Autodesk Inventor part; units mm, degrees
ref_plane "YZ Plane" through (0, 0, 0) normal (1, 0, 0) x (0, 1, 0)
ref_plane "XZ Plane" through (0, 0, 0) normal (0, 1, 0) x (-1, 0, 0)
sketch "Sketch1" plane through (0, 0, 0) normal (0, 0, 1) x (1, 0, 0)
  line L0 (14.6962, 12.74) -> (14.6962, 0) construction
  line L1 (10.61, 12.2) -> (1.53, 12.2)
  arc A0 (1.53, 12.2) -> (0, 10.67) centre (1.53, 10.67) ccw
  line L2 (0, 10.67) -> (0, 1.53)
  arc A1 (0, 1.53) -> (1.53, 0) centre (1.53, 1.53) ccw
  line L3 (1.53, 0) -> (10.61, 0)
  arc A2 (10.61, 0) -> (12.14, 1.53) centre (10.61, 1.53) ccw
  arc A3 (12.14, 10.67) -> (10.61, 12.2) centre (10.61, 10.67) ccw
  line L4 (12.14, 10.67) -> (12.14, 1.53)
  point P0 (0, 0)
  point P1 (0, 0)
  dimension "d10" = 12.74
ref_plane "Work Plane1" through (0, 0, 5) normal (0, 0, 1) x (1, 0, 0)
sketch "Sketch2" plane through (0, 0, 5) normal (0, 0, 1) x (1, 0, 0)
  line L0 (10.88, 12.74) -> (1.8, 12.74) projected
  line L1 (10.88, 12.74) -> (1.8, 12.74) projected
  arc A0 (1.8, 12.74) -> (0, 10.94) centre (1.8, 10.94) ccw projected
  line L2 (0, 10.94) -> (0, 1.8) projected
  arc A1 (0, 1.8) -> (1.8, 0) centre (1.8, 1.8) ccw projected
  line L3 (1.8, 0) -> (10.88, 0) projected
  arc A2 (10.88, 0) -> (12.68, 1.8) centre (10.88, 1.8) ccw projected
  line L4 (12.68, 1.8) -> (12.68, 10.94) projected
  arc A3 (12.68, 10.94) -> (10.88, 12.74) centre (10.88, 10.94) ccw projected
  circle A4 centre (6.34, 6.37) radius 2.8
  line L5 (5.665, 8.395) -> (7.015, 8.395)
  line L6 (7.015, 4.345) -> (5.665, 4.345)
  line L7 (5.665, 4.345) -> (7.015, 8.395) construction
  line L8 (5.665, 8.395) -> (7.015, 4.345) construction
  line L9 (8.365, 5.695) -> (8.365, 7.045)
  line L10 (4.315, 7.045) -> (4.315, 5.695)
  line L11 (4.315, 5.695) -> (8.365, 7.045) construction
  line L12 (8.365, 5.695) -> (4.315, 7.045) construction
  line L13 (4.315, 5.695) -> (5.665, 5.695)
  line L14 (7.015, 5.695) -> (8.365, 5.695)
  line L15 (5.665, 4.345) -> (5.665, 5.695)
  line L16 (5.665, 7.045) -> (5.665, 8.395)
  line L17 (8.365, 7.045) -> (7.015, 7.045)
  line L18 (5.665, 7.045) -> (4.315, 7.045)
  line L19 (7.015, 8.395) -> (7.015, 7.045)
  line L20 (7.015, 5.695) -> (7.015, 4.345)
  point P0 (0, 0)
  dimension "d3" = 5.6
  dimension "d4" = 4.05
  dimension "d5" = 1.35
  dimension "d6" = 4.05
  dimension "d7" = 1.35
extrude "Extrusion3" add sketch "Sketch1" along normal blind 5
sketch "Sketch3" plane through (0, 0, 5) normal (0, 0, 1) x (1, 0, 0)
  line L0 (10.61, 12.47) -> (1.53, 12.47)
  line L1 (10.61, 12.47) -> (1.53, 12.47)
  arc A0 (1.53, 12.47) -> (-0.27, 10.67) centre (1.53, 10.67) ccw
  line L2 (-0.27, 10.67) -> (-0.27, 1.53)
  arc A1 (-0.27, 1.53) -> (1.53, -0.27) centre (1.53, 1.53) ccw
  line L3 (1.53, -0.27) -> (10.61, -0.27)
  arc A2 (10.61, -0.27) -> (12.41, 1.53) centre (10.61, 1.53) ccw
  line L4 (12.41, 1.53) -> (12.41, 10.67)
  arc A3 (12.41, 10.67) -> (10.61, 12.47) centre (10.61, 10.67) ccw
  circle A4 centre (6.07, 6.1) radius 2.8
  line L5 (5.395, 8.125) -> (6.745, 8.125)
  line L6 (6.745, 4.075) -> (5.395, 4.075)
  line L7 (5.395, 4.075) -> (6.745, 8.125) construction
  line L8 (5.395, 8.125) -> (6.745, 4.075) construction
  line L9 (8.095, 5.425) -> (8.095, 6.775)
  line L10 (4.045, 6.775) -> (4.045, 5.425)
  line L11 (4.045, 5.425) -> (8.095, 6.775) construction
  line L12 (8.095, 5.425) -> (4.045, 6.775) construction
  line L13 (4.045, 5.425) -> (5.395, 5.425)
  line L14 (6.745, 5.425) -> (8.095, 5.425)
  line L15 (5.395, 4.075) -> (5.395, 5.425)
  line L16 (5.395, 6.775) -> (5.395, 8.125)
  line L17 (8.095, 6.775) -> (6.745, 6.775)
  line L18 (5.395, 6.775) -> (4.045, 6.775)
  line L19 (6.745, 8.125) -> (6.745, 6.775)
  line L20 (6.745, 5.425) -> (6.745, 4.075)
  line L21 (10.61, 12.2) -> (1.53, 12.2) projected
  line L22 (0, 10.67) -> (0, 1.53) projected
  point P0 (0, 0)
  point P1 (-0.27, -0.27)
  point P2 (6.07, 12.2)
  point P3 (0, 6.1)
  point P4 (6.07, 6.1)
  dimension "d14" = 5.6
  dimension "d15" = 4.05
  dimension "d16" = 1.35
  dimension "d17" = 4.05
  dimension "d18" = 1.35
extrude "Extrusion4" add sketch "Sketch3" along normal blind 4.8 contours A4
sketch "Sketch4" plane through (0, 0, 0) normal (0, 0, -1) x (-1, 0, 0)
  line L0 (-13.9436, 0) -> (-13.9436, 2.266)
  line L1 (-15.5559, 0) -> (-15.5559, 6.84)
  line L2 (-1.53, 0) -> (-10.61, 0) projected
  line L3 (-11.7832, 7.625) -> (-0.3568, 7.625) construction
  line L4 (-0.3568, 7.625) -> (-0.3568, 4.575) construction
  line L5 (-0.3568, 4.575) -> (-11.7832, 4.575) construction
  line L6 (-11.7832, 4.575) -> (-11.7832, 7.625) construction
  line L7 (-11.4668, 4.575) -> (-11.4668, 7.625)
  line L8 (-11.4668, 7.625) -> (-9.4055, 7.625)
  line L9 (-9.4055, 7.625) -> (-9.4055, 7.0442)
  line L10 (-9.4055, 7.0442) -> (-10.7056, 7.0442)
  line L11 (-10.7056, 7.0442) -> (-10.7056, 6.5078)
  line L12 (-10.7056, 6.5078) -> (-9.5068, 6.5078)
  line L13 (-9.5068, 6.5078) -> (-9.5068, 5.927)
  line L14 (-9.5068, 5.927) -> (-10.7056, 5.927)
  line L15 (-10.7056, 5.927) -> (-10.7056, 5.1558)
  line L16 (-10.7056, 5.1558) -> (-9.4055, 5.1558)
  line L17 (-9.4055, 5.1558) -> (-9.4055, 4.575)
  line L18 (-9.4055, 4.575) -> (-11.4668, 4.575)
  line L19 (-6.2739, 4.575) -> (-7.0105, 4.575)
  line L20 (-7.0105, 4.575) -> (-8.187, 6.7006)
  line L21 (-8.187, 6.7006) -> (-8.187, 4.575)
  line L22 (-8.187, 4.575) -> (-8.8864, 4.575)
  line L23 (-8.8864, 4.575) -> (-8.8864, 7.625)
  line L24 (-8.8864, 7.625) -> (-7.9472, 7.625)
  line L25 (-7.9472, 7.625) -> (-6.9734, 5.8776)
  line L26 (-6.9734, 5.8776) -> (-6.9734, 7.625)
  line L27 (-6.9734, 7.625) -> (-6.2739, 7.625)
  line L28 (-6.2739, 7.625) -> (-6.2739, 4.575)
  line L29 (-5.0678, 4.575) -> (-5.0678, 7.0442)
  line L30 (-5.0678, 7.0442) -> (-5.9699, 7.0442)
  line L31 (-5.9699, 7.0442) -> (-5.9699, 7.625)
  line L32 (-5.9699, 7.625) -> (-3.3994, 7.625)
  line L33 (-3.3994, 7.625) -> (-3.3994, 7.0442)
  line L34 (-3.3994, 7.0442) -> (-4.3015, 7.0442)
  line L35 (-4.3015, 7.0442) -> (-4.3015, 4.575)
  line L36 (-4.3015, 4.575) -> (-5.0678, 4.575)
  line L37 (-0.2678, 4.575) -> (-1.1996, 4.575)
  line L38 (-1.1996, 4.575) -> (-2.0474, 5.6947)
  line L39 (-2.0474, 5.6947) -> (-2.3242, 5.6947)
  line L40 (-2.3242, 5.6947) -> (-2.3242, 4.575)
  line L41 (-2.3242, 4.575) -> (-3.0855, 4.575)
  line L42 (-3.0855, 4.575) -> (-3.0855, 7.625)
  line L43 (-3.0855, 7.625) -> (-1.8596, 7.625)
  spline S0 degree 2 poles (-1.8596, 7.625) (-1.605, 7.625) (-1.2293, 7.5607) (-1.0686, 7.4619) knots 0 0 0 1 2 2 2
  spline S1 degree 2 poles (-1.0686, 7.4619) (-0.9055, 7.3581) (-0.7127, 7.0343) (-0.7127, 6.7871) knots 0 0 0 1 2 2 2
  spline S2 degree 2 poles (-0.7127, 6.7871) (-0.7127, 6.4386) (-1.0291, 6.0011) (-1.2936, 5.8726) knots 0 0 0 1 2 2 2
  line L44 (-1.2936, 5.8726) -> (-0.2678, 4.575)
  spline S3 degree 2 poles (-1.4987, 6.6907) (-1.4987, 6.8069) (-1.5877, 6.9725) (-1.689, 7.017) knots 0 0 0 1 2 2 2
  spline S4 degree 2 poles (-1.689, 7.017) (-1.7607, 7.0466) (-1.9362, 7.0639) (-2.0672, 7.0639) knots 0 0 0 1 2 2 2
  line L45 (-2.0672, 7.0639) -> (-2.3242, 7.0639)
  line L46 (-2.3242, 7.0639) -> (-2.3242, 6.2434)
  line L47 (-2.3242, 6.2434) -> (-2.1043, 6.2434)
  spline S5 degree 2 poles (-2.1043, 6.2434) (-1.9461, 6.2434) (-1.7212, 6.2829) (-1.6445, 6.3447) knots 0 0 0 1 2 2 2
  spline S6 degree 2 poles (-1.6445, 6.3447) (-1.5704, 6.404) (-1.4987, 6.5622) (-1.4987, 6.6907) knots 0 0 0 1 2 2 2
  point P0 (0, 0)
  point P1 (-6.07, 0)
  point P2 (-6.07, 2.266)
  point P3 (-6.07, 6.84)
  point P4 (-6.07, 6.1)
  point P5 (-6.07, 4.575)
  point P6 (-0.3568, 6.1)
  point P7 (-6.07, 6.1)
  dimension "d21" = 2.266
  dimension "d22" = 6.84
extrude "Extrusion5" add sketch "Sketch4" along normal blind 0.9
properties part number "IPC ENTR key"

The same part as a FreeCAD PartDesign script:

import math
import FreeCAD as App
import Part
import Sketcher

V = App.Vector
Q = App.Units.Quantity


def add_polygon(sketch, points):
    """Adds a closed chain of lines whose ends are joined by coincident constraints."""
    first, n = sketch.GeometryCount, len(points)
    for a, b in zip(points, points[1:] + points[:1]):
        sketch.addGeometry(Part.LineSegment(App.Vector(*a, 0), App.Vector(*b, 0)), False)
    for i in range(n):
        sketch.addConstraint(Sketcher.Constraint("Coincident", first + i, 2, first + (i + 1) % n, 1))

doc = App.newDocument("Part")
params = doc.addObject("Spreadsheet::Sheet", "Params")
for row, (alias, value) in enumerate([
    ("sketch1_radius", "1.53 mm"),
    ("sketch1_width", "9.08 mm"),
    ("sketch1_height", "9.14 mm"),
    ("pad1_length", "5 mm"),
    ("sketch2_diameter", "5.6 mm"),
    ("sketch2_width", "1.35 mm"),
    ("pad2_length", "4.8 mm"),
    ("sketch3_width", "1.3 mm"),
    ("sketch3_width2", "0.22 mm"),
    ("sketch3_height", "3.05 mm"),
    ("pad3_length", "0.9 mm"),
], start=1):
    params.set(f"A{row}", alias)
    params.set(f"B{row}", "=" + value)
    params.setAlias(f"B{row}", alias)

body = doc.addObject("PartDesign::Body", "Body")

# Sketch on XY plane
sketch1 = body.newObject("Sketcher::SketchObject", "Sketch")
sketch1.AttachmentSupport = (doc.getObject("XY_Plane"), [""])
sketch1.MapMode = "FlatFace"
sketch1.addGeometry([
    Part.ArcOfCircle(Part.Circle(V(10.61, 10.67, 0), V(0, 0, 1), 1.53), math.radians(0), math.radians(90)),  # 0
    Part.LineSegment(V(10.61, 12.2, 0), V(1.53, 12.2, 0)),  # 1
    Part.ArcOfCircle(Part.Circle(V(1.53, 10.67, 0), V(0, 0, 1), 1.53), math.radians(90), math.radians(180)),  # 2
    Part.LineSegment(V(0, 10.67, 0), V(0, 1.53, 0)),  # 3
    Part.ArcOfCircle(Part.Circle(V(1.53, 1.53, 0), V(0, 0, 1), 1.53), math.radians(180), math.radians(270)),  # 4
    Part.LineSegment(V(1.53, 0, 0), V(10.61, 0, 0)),  # 5
    Part.ArcOfCircle(Part.Circle(V(10.61, 1.53, 0), V(0, 0, 1), 1.53), math.radians(-90), math.radians(0)),  # 6
    Part.LineSegment(V(12.14, 1.53, 0), V(12.14, 10.67, 0)),  # 7
], False)
sketch1.addConstraint([
    Sketcher.Constraint("Tangent", 0, 2, 1, 1),
    Sketcher.Constraint("Tangent", 1, 2, 2, 1),
    Sketcher.Constraint("Tangent", 2, 2, 3, 1),
    Sketcher.Constraint("Tangent", 3, 2, 4, 1),
    Sketcher.Constraint("Tangent", 4, 2, 5, 1),
    Sketcher.Constraint("Tangent", 5, 2, 6, 1),
    Sketcher.Constraint("Tangent", 6, 2, 7, 1),
    Sketcher.Constraint("Tangent", 7, 2, 0, 1),
    Sketcher.Constraint("Horizontal", 1),
    Sketcher.Constraint("Vertical", 3),
    Sketcher.Constraint("Horizontal", 5),
    Sketcher.Constraint("Vertical", 7),
    Sketcher.Constraint("Equal", 0, 2),
    Sketcher.Constraint("Equal", 2, 4),
    Sketcher.Constraint("Equal", 4, 6),
    Sketcher.Constraint("PointOnObject", 2, 2, -2),
    Sketcher.Constraint("PointOnObject", 4, 2, -1),
    Sketcher.Constraint("Radius", 0, Q("1.53 mm")),
    Sketcher.Constraint("DistanceX", 1, 2, 1, 1, Q("9.08 mm")),
    Sketcher.Constraint("DistanceY", 3, 2, 3, 1, Q("9.14 mm")),
])
sketch1.setExpression("Constraints[17]", "Params.sketch1_radius")
sketch1.setExpression("Constraints[18]", "Params.sketch1_width")
sketch1.setExpression("Constraints[19]", "Params.sketch1_height")
pad1 = body.newObject("PartDesign::Pad", "Pad")
pad1.Profile = sketch1
pad1.setExpression("Length", "Params.pad1_length")

# Sketch on XY plane
sketch2 = body.newObject("Sketcher::SketchObject", "Sketch001")
sketch2.AttachmentSupport = (doc.getObject("XY_Plane"), [""])
sketch2.MapMode = "FlatFace"
sketch2.AttachmentOffset = App.Placement(V(0, 0, 5), App.Rotation())
sketch2.addGeometry(Part.Circle(V(6.07, 6.1, 0), V(0, 0, 1), 2.8), False)  # 0
add_polygon(sketch2, [(5.395, 6.775), (5.395, 8.125), (6.745, 8.125), (6.745, 6.775), (8.095, 6.775), (8.095, 5.425), (6.745, 5.425), (6.745, 4.075), (5.395, 4.075), (5.395, 5.425), (4.045, 5.425), (4.045, 6.775)])  # lines 1-12
sketch2.addConstraint([
    Sketcher.Constraint("Vertical", 1),
    Sketcher.Constraint("Horizontal", 2),
    Sketcher.Constraint("Vertical", 3),
    Sketcher.Constraint("Horizontal", 4),
    Sketcher.Constraint("Vertical", 5),
    Sketcher.Constraint("Horizontal", 6),
    Sketcher.Constraint("Vertical", 7),
    Sketcher.Constraint("Horizontal", 8),
    Sketcher.Constraint("Vertical", 9),
    Sketcher.Constraint("Horizontal", 10),
    Sketcher.Constraint("Vertical", 11),
    Sketcher.Constraint("Horizontal", 12),
    Sketcher.Constraint("Horizontal", 6, 2, 9, 2),
    Sketcher.Constraint("Horizontal", 4, 2, 11, 2),
    Sketcher.Constraint("Vertical", 3, 2, 6, 2),
    Sketcher.Constraint("Vertical", 1, 2, 8, 2),
    Sketcher.Constraint("Equal", 2, 4),
    Sketcher.Constraint("Equal", 8, 10),
    Sketcher.Constraint("Equal", 12, 1),
    Sketcher.Constraint("Equal", 3, 5),
    Sketcher.Constraint("Equal", 5, 7),
    Sketcher.Constraint("Diameter", 0, Q("5.6 mm")),
    Sketcher.Constraint("DistanceX", 2, 1, 2, 2, Q("1.35 mm")),
    Sketcher.Constraint("DistanceY", -1, 1, 0, 3, Q("6.1 mm")),
    Sketcher.Constraint("DistanceX", -1, 1, 0, 3, Q("6.07 mm")),
    Sketcher.Constraint("DistanceX", -1, 1, 1, 2, Q("5.395 mm")),
    Sketcher.Constraint("DistanceY", -1, 1, 1, 2, Q("8.125 mm")),
])
sketch2.setExpression("Constraints[33]", "Params.sketch2_diameter")
sketch2.setExpression("Constraints[34]", "Params.sketch2_width")
pad2 = body.newObject("PartDesign::Pad", "Pad001")
pad2.Profile = sketch2
pad2.setExpression("Length", "Params.pad2_length")

# Sketch on XY plane
sketch3 = body.newObject("Sketcher::SketchObject", "Sketch002")
sketch3.AttachmentSupport = (doc.getObject("XY_Plane"), [""])
sketch3.MapMode = "FlatFace"
add_polygon(sketch3, [(11.4668, 7.625), (11.4668, 4.575), (9.4055, 4.575), (9.4055, 5.1558), (10.7056, 5.1558), (10.7056, 5.927), (9.5068, 5.927), (9.5068, 6.5078), (10.7056, 6.5078), (10.7056, 7.0442), (9.4055, 7.0442), (9.4055, 7.625)])  # lines 0-11
add_polygon(sketch3, [(7.0105, 4.575), (6.2739, 4.575), (6.2739, 7.625), (6.9734, 7.625), (6.9734, 5.8776), (7.9472, 7.625), (8.8864, 7.625), (8.8864, 4.575), (8.187, 4.575), (8.187, 6.7006)])  # lines 12-21
add_polygon(sketch3, [(5.0678, 7.0442), (5.0678, 4.575), (4.3015, 4.575), (4.3015, 7.0442), (3.3994, 7.0442), (3.3994, 7.625), (5.9699, 7.625), (5.9699, 7.0442)])  # lines 22-29
sketch3.addGeometry(Part.LineSegment(V(1.1996, 4.575, 0), V(0.2678, 4.575, 0)), False)  # 30
sketch3.addGeometry(Part.LineSegment(V(0.2678, 4.575, 0), V(1.2936, 5.8726, 0)), False)  # 31
sketch3.addGeometry(Part.BSplineCurve([V(0.7127, 6.7871, 0), V(0.7127, 6.4386, 0), V(1.0291, 6.0011, 0), V(1.2936, 5.8726, 0)], [3, 1, 3], [0, 1, 2], False, 2, [1, 1, 1, 1], False), False)  # 32
sketch3.addGeometry(Part.BSplineCurve([V(1.0686, 7.4619, 0), V(0.9055, 7.3581, 0), V(0.7127, 7.0343, 0), V(0.7127, 6.7871, 0)], [3, 1, 3], [0, 1, 2], False, 2, [1, 1, 1, 1], False), False)  # 33
sketch3.addGeometry(Part.BSplineCurve([V(1.8596, 7.625, 0), V(1.605, 7.625, 0), V(1.2293, 7.5607, 0), V(1.0686, 7.4619, 0)], [3, 1, 3], [0, 1, 2], False, 2, [1, 1, 1, 1], False), False)  # 34
sketch3.addGeometry(Part.LineSegment(V(1.8596, 7.625, 0), V(3.0855, 7.625, 0)), False)  # 35
sketch3.addGeometry(Part.LineSegment(V(3.0855, 7.625, 0), V(3.0855, 4.575, 0)), False)  # 36
sketch3.addGeometry(Part.LineSegment(V(3.0855, 4.575, 0), V(2.3242, 4.575, 0)), False)  # 37
sketch3.addGeometry(Part.LineSegment(V(2.3242, 4.575, 0), V(2.3242, 5.6947, 0)), False)  # 38
sketch3.addGeometry(Part.LineSegment(V(2.3242, 5.6947, 0), V(2.0474, 5.6947, 0)), False)  # 39
sketch3.addGeometry(Part.LineSegment(V(2.0474, 5.6947, 0), V(1.1996, 4.575, 0)), False)  # 40
sketch3.addGeometry(Part.BSplineCurve([V(1.4987, 6.6907, 0), V(1.4987, 6.8069, 0), V(1.5877, 6.9725, 0), V(1.689, 7.017, 0)], [3, 1, 3], [0, 1, 2], False, 2, [1, 1, 1, 1], False), False)  # 41
sketch3.addGeometry(Part.BSplineCurve([V(1.6445, 6.3447, 0), V(1.5704, 6.404, 0), V(1.4987, 6.5622, 0), V(1.4987, 6.6907, 0)], [3, 1, 3], [0, 1, 2], False, 2, [1, 1, 1, 1], False), False)  # 42
sketch3.addGeometry(Part.BSplineCurve([V(2.1043, 6.2434, 0), V(1.9461, 6.2434, 0), V(1.7212, 6.2829, 0), V(1.6445, 6.3447, 0)], [3, 1, 3], [0, 1, 2], False, 2, [1, 1, 1, 1], False), False)  # 43
sketch3.addGeometry(Part.LineSegment(V(2.1043, 6.2434, 0), V(2.3242, 6.2434, 0)), False)  # 44
sketch3.addGeometry(Part.LineSegment(V(2.3242, 6.2434, 0), V(2.3242, 7.0639, 0)), False)  # 45
sketch3.addGeometry(Part.LineSegment(V(2.3242, 7.0639, 0), V(2.0672, 7.0639, 0)), False)  # 46
sketch3.addGeometry(Part.BSplineCurve([V(1.689, 7.017, 0), V(1.7607, 7.0466, 0), V(1.9362, 7.0639, 0), V(2.0672, 7.0639, 0)], [3, 1, 3], [0, 1, 2], False, 2, [1, 1, 1, 1], False), False)  # 47
sketch3.addConstraint([
    Sketcher.Constraint("Block", 32),
    Sketcher.Constraint("Block", 33),
    Sketcher.Constraint("Block", 34),
    Sketcher.Constraint("Block", 41),
    Sketcher.Constraint("Block", 42),
    Sketcher.Constraint("Block", 43),
    Sketcher.Constraint("Block", 47),
    Sketcher.Constraint("Coincident", 30, 2, 31, 1),
    Sketcher.Constraint("Coincident", 31, 2, 32, 2),
    Sketcher.Constraint("Coincident", 34, 1, 35, 1),
    Sketcher.Constraint("Coincident", 35, 2, 36, 1),
    Sketcher.Constraint("Coincident", 36, 2, 37, 1),
    Sketcher.Constraint("Coincident", 37, 2, 38, 1),
    Sketcher.Constraint("Coincident", 38, 2, 39, 1),
    Sketcher.Constraint("Coincident", 39, 2, 40, 1),
    Sketcher.Constraint("Coincident", 40, 2, 30, 1),
    Sketcher.Constraint("Coincident", 43, 1, 44, 1),
    Sketcher.Constraint("Coincident", 44, 2, 45, 1),
    Sketcher.Constraint("Coincident", 45, 2, 46, 1),
    Sketcher.Constraint("Coincident", 46, 2, 47, 2),
    Sketcher.Constraint("Vertical", 0),
    Sketcher.Constraint("Horizontal", 1),
    Sketcher.Constraint("Vertical", 2),
    Sketcher.Constraint("Horizontal", 3),
    Sketcher.Constraint("Vertical", 4),
    Sketcher.Constraint("Horizontal", 5),
    Sketcher.Constraint("Vertical", 6),
    Sketcher.Constraint("Horizontal", 7),
    Sketcher.Constraint("Vertical", 8),
    Sketcher.Constraint("Horizontal", 9),
    Sketcher.Constraint("Vertical", 10),
    Sketcher.Constraint("Horizontal", 11),
    Sketcher.Constraint("Horizontal", 12),
    Sketcher.Constraint("Vertical", 13),
    Sketcher.Constraint("Horizontal", 14),
    Sketcher.Constraint("Vertical", 15),
    Sketcher.Constraint("Horizontal", 17),
    Sketcher.Constraint("Vertical", 18),
    Sketcher.Constraint("Horizontal", 19),
    Sketcher.Constraint("Vertical", 20),
    Sketcher.Constraint("Vertical", 22),
    Sketcher.Constraint("Horizontal", 23),
    Sketcher.Constraint("Vertical", 24),
    Sketcher.Constraint("Horizontal", 25),
    Sketcher.Constraint("Vertical", 26),
    Sketcher.Constraint("Horizontal", 27),
    Sketcher.Constraint("Vertical", 28),
    Sketcher.Constraint("Horizontal", 29),
    Sketcher.Constraint("Horizontal", 30),
    Sketcher.Constraint("Horizontal", 35),
    Sketcher.Constraint("Vertical", 36),
    Sketcher.Constraint("Horizontal", 37),
    Sketcher.Constraint("Vertical", 38),
    Sketcher.Constraint("Horizontal", 39),
    Sketcher.Constraint("Horizontal", 44),
    Sketcher.Constraint("Vertical", 45),
    Sketcher.Constraint("Horizontal", 46),
    Sketcher.Constraint("Horizontal", 1, 2, 12, 2),
    Sketcher.Constraint("Horizontal", 11, 2, 13, 2),
    Sketcher.Constraint("Horizontal", 14, 2, 16, 2),
    Sketcher.Constraint("Horizontal", 12, 2, 18, 2),
    Sketcher.Constraint("Horizontal", 21, 2, 22, 2),
    Sketcher.Constraint("Horizontal", 9, 2, 24, 2),
    Sketcher.Constraint("Horizontal", 17, 2, 26, 2),
    Sketcher.Constraint("Horizontal", 25, 2, 28, 2),
    Sketcher.Constraint("Horizontal", 23, 2, 30, 2),
    Sketcher.Constraint("Horizontal", 27, 2, 35, 2),
    Sketcher.Constraint("Horizontal", 30, 2, 36, 2),
    Sketcher.Constraint("Vertical", 4, 2, 7, 2),
    Sketcher.Constraint("Vertical", 2, 2, 9, 2),
    Sketcher.Constraint("Vertical", 38, 2, 44, 2),
    Sketcher.Constraint("Equal", 14, 19),
    Sketcher.Constraint("Equal", 25, 29),
    Sketcher.Constraint("Equal", 2, 6),
    Sketcher.Constraint("Equal", 6, 10),
    Sketcher.Constraint("DistanceX", 3, 1, 3, 2, Q("1.3 mm")),
    Sketcher.Constraint("DistanceX", 44, 1, 44, 2, Q("0.22 mm")),
    Sketcher.Constraint("DistanceY", 0, 2, 0, 1, Q("3.05 mm")),
    Sketcher.Constraint("Angle", 16, Q("60.8697 deg")),
    Sketcher.Constraint("DistanceX", 30, 2, 22, 2, Q("4.8 mm")),
    Sketcher.Constraint("DistanceX", 25, 2, 25, 1, Q("0.902 mm")),
    Sketcher.Constraint("DistanceX", 35, 1, 35, 2, Q("1.226 mm")),
    Sketcher.Constraint("DistanceX", -1, 1, 27, 2, Q("5.97 mm")),
    Sketcher.Constraint("DistanceX", 5, 2, 0, 2, Q("1.96 mm")),
    Sketcher.Constraint("DistanceX", 1, 2, 1, 1, Q("2.0613 mm")),
    Sketcher.Constraint("DistanceX", 12, 2, 12, 1, Q("0.7366 mm")),
    Sketcher.Constraint("DistanceX", 14, 1, 14, 2, Q("0.6995 mm")),
    Sketcher.Constraint("DistanceX", 17, 1, 17, 2, Q("0.9392 mm")),
    Sketcher.Constraint("DistanceX", 23, 2, 23, 1, Q("0.7663 mm")),
    Sketcher.Constraint("DistanceX", 30, 2, 30, 1, Q("0.9318 mm")),
    Sketcher.Constraint("DistanceX", 39, 2, 39, 1, Q("0.2768 mm")),
    Sketcher.Constraint("DistanceY", 2, 1, 2, 2, Q("0.5808 mm")),
    Sketcher.Constraint("DistanceY", 4, 1, 4, 2, Q("0.7712 mm")),
    Sketcher.Constraint("DistanceY", 15, 2, 15, 1, Q("1.7474 mm")),
    Sketcher.Constraint("DistanceY", 20, 1, 20, 2, Q("2.1256 mm")),
    Sketcher.Constraint("DistanceY", 38, 1, 38, 2, Q("1.1197 mm")),
    Sketcher.Constraint("DistanceX", -1, 1, 12, 2, Q("6.274 mm")),
    Sketcher.Constraint("DistanceX", 12, 2, 5, 2, Q("3.233 mm")),
])
sketch3.setExpression("Constraints[105]", "Params.sketch3_width")
sketch3.setExpression("Constraints[106]", "Params.sketch3_width2")
sketch3.setExpression("Constraints[107]", "Params.sketch3_height")
pad3 = body.newObject("PartDesign::Pad", "Pad002")
pad3.Profile = sketch3
pad3.setExpression("Length", "Params.pad3_length")
pad3.Reversed = True

doc.recompute()
